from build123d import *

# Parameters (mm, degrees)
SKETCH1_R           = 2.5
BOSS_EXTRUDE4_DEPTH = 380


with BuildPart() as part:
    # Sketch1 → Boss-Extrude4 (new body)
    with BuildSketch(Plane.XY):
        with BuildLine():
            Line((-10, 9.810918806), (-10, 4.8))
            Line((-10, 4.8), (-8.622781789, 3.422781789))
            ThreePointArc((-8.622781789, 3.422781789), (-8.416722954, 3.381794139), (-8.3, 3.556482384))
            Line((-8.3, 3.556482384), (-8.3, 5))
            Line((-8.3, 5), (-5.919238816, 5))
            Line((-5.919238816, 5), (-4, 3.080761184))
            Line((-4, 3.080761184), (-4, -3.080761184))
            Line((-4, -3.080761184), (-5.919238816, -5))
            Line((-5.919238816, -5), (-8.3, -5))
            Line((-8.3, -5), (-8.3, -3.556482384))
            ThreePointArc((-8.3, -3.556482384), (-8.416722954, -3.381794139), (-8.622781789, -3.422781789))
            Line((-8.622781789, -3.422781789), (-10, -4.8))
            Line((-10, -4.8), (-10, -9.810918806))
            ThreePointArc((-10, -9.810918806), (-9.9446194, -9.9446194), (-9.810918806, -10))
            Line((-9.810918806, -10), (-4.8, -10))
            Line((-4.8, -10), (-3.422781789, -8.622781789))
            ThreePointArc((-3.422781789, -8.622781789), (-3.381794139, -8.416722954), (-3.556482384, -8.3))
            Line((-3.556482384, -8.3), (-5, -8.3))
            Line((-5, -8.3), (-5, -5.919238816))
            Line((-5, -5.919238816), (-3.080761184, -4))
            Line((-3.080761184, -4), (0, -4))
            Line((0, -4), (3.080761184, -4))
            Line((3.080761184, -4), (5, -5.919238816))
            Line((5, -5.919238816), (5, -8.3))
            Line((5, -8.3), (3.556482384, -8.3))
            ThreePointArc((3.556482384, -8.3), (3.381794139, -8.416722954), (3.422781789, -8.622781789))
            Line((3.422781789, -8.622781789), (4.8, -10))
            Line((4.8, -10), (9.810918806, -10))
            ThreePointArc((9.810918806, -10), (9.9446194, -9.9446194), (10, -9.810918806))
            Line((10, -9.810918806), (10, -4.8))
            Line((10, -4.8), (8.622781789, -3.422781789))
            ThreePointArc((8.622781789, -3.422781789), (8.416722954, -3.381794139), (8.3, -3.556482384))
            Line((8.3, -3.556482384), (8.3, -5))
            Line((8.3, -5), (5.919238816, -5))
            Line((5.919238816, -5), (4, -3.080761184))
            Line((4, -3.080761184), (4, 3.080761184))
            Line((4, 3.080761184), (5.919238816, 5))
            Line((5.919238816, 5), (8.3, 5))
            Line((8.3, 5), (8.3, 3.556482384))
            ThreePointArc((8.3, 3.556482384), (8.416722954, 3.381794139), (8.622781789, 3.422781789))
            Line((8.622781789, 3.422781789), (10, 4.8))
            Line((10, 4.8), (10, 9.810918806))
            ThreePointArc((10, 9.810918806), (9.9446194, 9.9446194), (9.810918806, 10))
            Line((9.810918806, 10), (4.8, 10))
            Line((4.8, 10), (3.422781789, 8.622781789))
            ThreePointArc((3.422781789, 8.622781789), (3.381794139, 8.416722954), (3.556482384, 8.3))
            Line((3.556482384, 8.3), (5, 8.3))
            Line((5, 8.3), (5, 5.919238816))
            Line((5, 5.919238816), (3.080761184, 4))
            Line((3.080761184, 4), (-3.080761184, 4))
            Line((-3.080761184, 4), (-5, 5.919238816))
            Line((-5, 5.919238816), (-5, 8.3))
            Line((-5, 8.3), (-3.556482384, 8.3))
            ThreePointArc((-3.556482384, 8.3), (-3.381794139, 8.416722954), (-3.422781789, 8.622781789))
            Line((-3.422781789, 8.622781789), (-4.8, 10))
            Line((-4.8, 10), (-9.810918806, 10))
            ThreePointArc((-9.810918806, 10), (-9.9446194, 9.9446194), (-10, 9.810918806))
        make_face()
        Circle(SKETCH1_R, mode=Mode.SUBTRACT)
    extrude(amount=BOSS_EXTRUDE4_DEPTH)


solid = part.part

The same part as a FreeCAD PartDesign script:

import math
import FreeCAD as App
import Part
import Sketcher
from FreeCAD import Vector
Q = App.Units.Quantity

doc = App.newDocument("Part")
body = doc.addObject("PartDesign::Body", "Body")

sketch1 = doc.addObject("Sketcher::SketchObject", "Sketch")
body.addObject(sketch1)
sketch1.AttachmentSupport = (doc.XY_Plane, [""])
sketch1.MapMode = "FlatFace"
sketch1.addGeometry(Part.LineSegment(Vector(-10, 9.810919, 0), Vector(-10, 4.8, 0)), False)
sketch1.addGeometry(Part.LineSegment(Vector(-10, 4.8, 0), Vector(-8.622782, 3.422782, 0)), False)
sketch1.addGeometry(Part.ArcOfCircle(Part.Circle(Vector(-8.489081, 3.556482, 0), Vector(0, 0, 1), 0.189081), math.radians(-135), math.radians(0)), False)
sketch1.addGeometry(Part.LineSegment(Vector(-8.3, 3.556482, 0), Vector(-8.3, 5, 0)), False)
sketch1.addGeometry(Part.LineSegment(Vector(-8.3, 5, 0), Vector(-5.919239, 5, 0)), False)
sketch1.addGeometry(Part.LineSegment(Vector(-5.919239, 5, 0), Vector(-4, 3.080761, 0)), False)
sketch1.addGeometry(Part.LineSegment(Vector(-4, 3.080761, 0), Vector(-4, -3.080761, 0)), False)
sketch1.addGeometry(Part.LineSegment(Vector(-4, -3.080761, 0), Vector(-5.919239, -5, 0)), False)
sketch1.addGeometry(Part.LineSegment(Vector(-5.919239, -5, 0), Vector(-8.3, -5, 0)), False)
sketch1.addGeometry(Part.LineSegment(Vector(-8.3, -5, 0), Vector(-8.3, -3.556482, 0)), False)
sketch1.addGeometry(Part.ArcOfCircle(Part.Circle(Vector(-8.489081, -3.556482, 0), Vector(0, 0, 1), 0.189081), math.radians(0), math.radians(135)), False)
sketch1.addGeometry(Part.LineSegment(Vector(-8.622782, -3.422782, 0), Vector(-10, -4.8, 0)), False)
sketch1.addGeometry(Part.LineSegment(Vector(-10, -4.8, 0), Vector(-10, -9.810919, 0)), False)
sketch1.addGeometry(Part.ArcOfCircle(Part.Circle(Vector(-9.810919, -9.810919, 0), Vector(0, 0, 1), 0.189081), math.radians(-179.999999), math.radians(-90.000001)), False)
sketch1.addGeometry(Part.LineSegment(Vector(-9.810919, -10, 0), Vector(-4.8, -10, 0)), False)
sketch1.addGeometry(Part.LineSegment(Vector(-4.8, -10, 0), Vector(-3.422782, -8.622782, 0)), False)
sketch1.addGeometry(Part.ArcOfCircle(Part.Circle(Vector(-3.556482, -8.489081, 0), Vector(0, 0, 1), 0.189081), math.radians(-45), math.radians(90)), False)
sketch1.addGeometry(Part.LineSegment(Vector(-3.556482, -8.3, 0), Vector(-5, -8.3, 0)), False)
sketch1.addGeometry(Part.LineSegment(Vector(-5, -8.3, 0), Vector(-5, -5.919239, 0)), False)
sketch1.addGeometry(Part.LineSegment(Vector(-5, -5.919239, 0), Vector(-3.080761, -4, 0)), False)
sketch1.addGeometry(Part.LineSegment(Vector(-3.080761, -4, 0), Vector(3.080761, -4, 0)), False)
sketch1.addGeometry(Part.LineSegment(Vector(3.080761, -4, 0), Vector(5, -5.919239, 0)), False)
sketch1.addGeometry(Part.LineSegment(Vector(5, -5.919239, 0), Vector(5, -8.3, 0)), False)
sketch1.addGeometry(Part.LineSegment(Vector(5, -8.3, 0), Vector(3.556482, -8.3, 0)), False)
sketch1.addGeometry(Part.ArcOfCircle(Part.Circle(Vector(3.556482, -8.489081, 0), Vector(0, 0, 1), 0.189081), math.radians(90), math.radians(225)), False)
sketch1.addGeometry(Part.LineSegment(Vector(3.422782, -8.622782, 0), Vector(4.8, -10, 0)), False)
sketch1.addGeometry(Part.LineSegment(Vector(4.8, -10, 0), Vector(9.810919, -10, 0)), False)
sketch1.addGeometry(Part.ArcOfCircle(Part.Circle(Vector(9.810919, -9.810919, 0), Vector(0, 0, 1), 0.189081), math.radians(-89.999999), math.radians(-0.000001)), False)
sketch1.addGeometry(Part.LineSegment(Vector(10, -9.810919, 0), Vector(10, -4.8, 0)), False)
sketch1.addGeometry(Part.LineSegment(Vector(10, -4.8, 0), Vector(8.622782, -3.422782, 0)), False)
sketch1.addGeometry(Part.ArcOfCircle(Part.Circle(Vector(8.489081, -3.556482, 0), Vector(0, 0, 1), 0.189081), math.radians(45), math.radians(180)), False)
sketch1.addGeometry(Part.LineSegment(Vector(8.3, -3.556482, 0), Vector(8.3, -5, 0)), False)
sketch1.addGeometry(Part.LineSegment(Vector(8.3, -5, 0), Vector(5.919239, -5, 0)), False)
sketch1.addGeometry(Part.LineSegment(Vector(5.919239, -5, 0), Vector(4, -3.080761, 0)), False)
sketch1.addGeometry(Part.LineSegment(Vector(4, -3.080761, 0), Vector(4, 3.080761, 0)), False)
sketch1.addGeometry(Part.LineSegment(Vector(4, 3.080761, 0), Vector(5.919239, 5, 0)), False)
sketch1.addGeometry(Part.LineSegment(Vector(5.919239, 5, 0), Vector(8.3, 5, 0)), False)
sketch1.addGeometry(Part.LineSegment(Vector(8.3, 5, 0), Vector(8.3, 3.556482, 0)), False)
sketch1.addGeometry(Part.ArcOfCircle(Part.Circle(Vector(8.489081, 3.556482, 0), Vector(0, 0, 1), 0.189081), math.radians(-180), math.radians(-45)), False)
sketch1.addGeometry(Part.LineSegment(Vector(8.622782, 3.422782, 0), Vector(10, 4.8, 0)), False)
sketch1.addGeometry(Part.LineSegment(Vector(10, 4.8, 0), Vector(10, 9.810919, 0)), False)
sketch1.addGeometry(Part.ArcOfCircle(Part.Circle(Vector(9.810919, 9.810919, 0), Vector(0, 0, 1), 0.189081), math.radians(0.000001), math.radians(89.999999)), False)
sketch1.addGeometry(Part.LineSegment(Vector(9.810919, 10, 0), Vector(4.8, 10, 0)), False)
sketch1.addGeometry(Part.LineSegment(Vector(4.8, 10, 0), Vector(3.422782, 8.622782, 0)), False)
sketch1.addGeometry(Part.ArcOfCircle(Part.Circle(Vector(3.556482, 8.489081, 0), Vector(0, 0, 1), 0.189081), math.radians(135), math.radians(270)), False)
sketch1.addGeometry(Part.LineSegment(Vector(3.556482, 8.3, 0), Vector(5, 8.3, 0)), False)
sketch1.addGeometry(Part.LineSegment(Vector(5, 8.3, 0), Vector(5, 5.919239, 0)), False)
sketch1.addGeometry(Part.LineSegment(Vector(5, 5.919239, 0), Vector(3.080761, 4, 0)), False)
sketch1.addGeometry(Part.LineSegment(Vector(3.080761, 4, 0), Vector(-3.080761, 4, 0)), False)
sketch1.addGeometry(Part.LineSegment(Vector(-3.080761, 4, 0), Vector(-5, 5.919239, 0)), False)
sketch1.addGeometry(Part.LineSegment(Vector(-5, 5.919239, 0), Vector(-5, 8.3, 0)), False)
sketch1.addGeometry(Part.LineSegment(Vector(-5, 8.3, 0), Vector(-3.556482, 8.3, 0)), False)
sketch1.addGeometry(Part.ArcOfCircle(Part.Circle(Vector(-3.556482, 8.489081, 0), Vector(0, 0, 1), 0.189081), math.radians(-90), math.radians(45)), False)
sketch1.addGeometry(Part.LineSegment(Vector(-3.422782, 8.622782, 0), Vector(-4.8, 10, 0)), False)
sketch1.addGeometry(Part.LineSegment(Vector(-4.8, 10, 0), Vector(-9.810919, 10, 0)), False)
sketch1.addGeometry(Part.ArcOfCircle(Part.Circle(Vector(-9.810919, 9.810919, 0), Vector(0, 0, 1), 0.189081), math.radians(90.000001), math.radians(179.999999)), False)
sketch1.addGeometry(Part.Circle(Vector(0, 0, 0), Vector(0, 0, 1), 2.5), False)
sketch1.addConstraint(Sketcher.Constraint("Coincident", 0, 2, 1, 1))
sketch1.addConstraint(Sketcher.Constraint("Tangent", 1, 2, 2, 1))
sketch1.addConstraint(Sketcher.Constraint("Tangent", 2, 2, 3, 1))
sketch1.addConstraint(Sketcher.Constraint("Coincident", 3, 2, 4, 1))
sketch1.addConstraint(Sketcher.Constraint("Coincident", 4, 2, 5, 1))
sketch1.addConstraint(Sketcher.Constraint("Coincident", 5, 2, 6, 1))
sketch1.addConstraint(Sketcher.Constraint("Coincident", 6, 2, 7, 1))
sketch1.addConstraint(Sketcher.Constraint("Coincident", 7, 2, 8, 1))
sketch1.addConstraint(Sketcher.Constraint("Coincident", 8, 2, 9, 1))
sketch1.addConstraint(Sketcher.Constraint("Tangent", 9, 2, 10, 1))
sketch1.addConstraint(Sketcher.Constraint("Tangent", 10, 2, 11, 1))
sketch1.addConstraint(Sketcher.Constraint("Coincident", 11, 2, 12, 1))
sketch1.addConstraint(Sketcher.Constraint("Tangent", 12, 2, 13, 1))
sketch1.addConstraint(Sketcher.Constraint("Tangent", 13, 2, 14, 1))
sketch1.addConstraint(Sketcher.Constraint("Coincident", 14, 2, 15, 1))
sketch1.addConstraint(Sketcher.Constraint("Tangent", 15, 2, 16, 1))
sketch1.addConstraint(Sketcher.Constraint("Tangent", 16, 2, 17, 1))
sketch1.addConstraint(Sketcher.Constraint("Coincident", 17, 2, 18, 1))
sketch1.addConstraint(Sketcher.Constraint("Coincident", 18, 2, 19, 1))
sketch1.addConstraint(Sketcher.Constraint("Coincident", 19, 2, 20, 1))
sketch1.addConstraint(Sketcher.Constraint("Coincident", 20, 2, 21, 1))
sketch1.addConstraint(Sketcher.Constraint("Coincident", 21, 2, 22, 1))
sketch1.addConstraint(Sketcher.Constraint("Coincident", 22, 2, 23, 1))
sketch1.addConstraint(Sketcher.Constraint("Tangent", 23, 2, 24, 1))
sketch1.addConstraint(Sketcher.Constraint("Tangent", 24, 2, 25, 1))
sketch1.addConstraint(Sketcher.Constraint("Coincident", 25, 2, 26, 1))
sketch1.addConstraint(Sketcher.Constraint("Tangent", 26, 2, 27, 1))
sketch1.addConstraint(Sketcher.Constraint("Tangent", 27, 2, 28, 1))
sketch1.addConstraint(Sketcher.Constraint("Coincident", 28, 2, 29, 1))
sketch1.addConstraint(Sketcher.Constraint("Tangent", 29, 2, 30, 1))
sketch1.addConstraint(Sketcher.Constraint("Tangent", 30, 2, 31, 1))
sketch1.addConstraint(Sketcher.Constraint("Coincident", 31, 2, 32, 1))
sketch1.addConstraint(Sketcher.Constraint("Coincident", 32, 2, 33, 1))
sketch1.addConstraint(Sketcher.Constraint("Coincident", 33, 2, 34, 1))
sketch1.addConstraint(Sketcher.Constraint("Coincident", 34, 2, 35, 1))
sketch1.addConstraint(Sketcher.Constraint("Coincident", 35, 2, 36, 1))
sketch1.addConstraint(Sketcher.Constraint("Coincident", 36, 2, 37, 1))
sketch1.addConstraint(Sketcher.Constraint("Tangent", 37, 2, 38, 1))
sketch1.addConstraint(Sketcher.Constraint("Tangent", 38, 2, 39, 1))
sketch1.addConstraint(Sketcher.Constraint("Coincident", 39, 2, 40, 1))
sketch1.addConstraint(Sketcher.Constraint("Tangent", 40, 2, 41, 1))
sketch1.addConstraint(Sketcher.Constraint("Tangent", 41, 2, 42, 1))
sketch1.addConstraint(Sketcher.Constraint("Coincident", 42, 2, 43, 1))
sketch1.addConstraint(Sketcher.Constraint("Tangent", 43, 2, 44, 1))
sketch1.addConstraint(Sketcher.Constraint("Tangent", 44, 2, 45, 1))
sketch1.addConstraint(Sketcher.Constraint("Coincident", 45, 2, 46, 1))
sketch1.addConstraint(Sketcher.Constraint("Coincident", 46, 2, 47, 1))
sketch1.addConstraint(Sketcher.Constraint("Coincident", 47, 2, 48, 1))
sketch1.addConstraint(Sketcher.Constraint("Coincident", 48, 2, 49, 1))
sketch1.addConstraint(Sketcher.Constraint("Coincident", 49, 2, 50, 1))
sketch1.addConstraint(Sketcher.Constraint("Coincident", 50, 2, 51, 1))
sketch1.addConstraint(Sketcher.Constraint("Tangent", 51, 2, 52, 1))
sketch1.addConstraint(Sketcher.Constraint("Tangent", 52, 2, 53, 1))
sketch1.addConstraint(Sketcher.Constraint("Coincident", 53, 2, 54, 1))
sketch1.addConstraint(Sketcher.Constraint("Tangent", 54, 2, 55, 1))
sketch1.addConstraint(Sketcher.Constraint("Tangent", 55, 2, 0, 1))
sketch1.addConstraint(Sketcher.Constraint("Vertical", 0))
sketch1.addConstraint(Sketcher.Constraint("Vertical", 3))
sketch1.addConstraint(Sketcher.Constraint("Horizontal", 4))
sketch1.addConstraint(Sketcher.Constraint("Vertical", 6))
sketch1.addConstraint(Sketcher.Constraint("Horizontal", 8))
sketch1.addConstraint(Sketcher.Constraint("Vertical", 9))
sketch1.addConstraint(Sketcher.Constraint("Vertical", 12))
sketch1.addConstraint(Sketcher.Constraint("Horizontal", 14))
sketch1.addConstraint(Sketcher.Constraint("Horizontal", 17))
sketch1.addConstraint(Sketcher.Constraint("Vertical", 18))
sketch1.addConstraint(Sketcher.Constraint("Horizontal", 20))
sketch1.addConstraint(Sketcher.Constraint("Vertical", 22))
sketch1.addConstraint(Sketcher.Constraint("Horizontal", 23))
sketch1.addConstraint(Sketcher.Constraint("Horizontal", 26))
sketch1.addConstraint(Sketcher.Constraint("Vertical", 28))
sketch1.addConstraint(Sketcher.Constraint("Vertical", 31))
sketch1.addConstraint(Sketcher.Constraint("Horizontal", 32))
sketch1.addConstraint(Sketcher.Constraint("Vertical", 34))
sketch1.addConstraint(Sketcher.Constraint("Horizontal", 36))
sketch1.addConstraint(Sketcher.Constraint("Vertical", 37))
sketch1.addConstraint(Sketcher.Constraint("Vertical", 40))
sketch1.addConstraint(Sketcher.Constraint("Horizontal", 42))
sketch1.addConstraint(Sketcher.Constraint("Horizontal", 45))
sketch1.addConstraint(Sketcher.Constraint("Vertical", 46))
sketch1.addConstraint(Sketcher.Constraint("Horizontal", 48))
sketch1.addConstraint(Sketcher.Constraint("Vertical", 50))
sketch1.addConstraint(Sketcher.Constraint("Horizontal", 51))
sketch1.addConstraint(Sketcher.Constraint("Horizontal", 54))
sketch1.addConstraint(Sketcher.Constraint("Coincident", 56, 3, -1, 1))
sketch1.addConstraint(Sketcher.Constraint("Equal", 2, 10))
sketch1.addConstraint(Sketcher.Constraint("Equal", 10, 13))
sketch1.addConstraint(Sketcher.Constraint("Equal", 13, 16))
sketch1.addConstraint(Sketcher.Constraint("Equal", 16, 24))
sketch1.addConstraint(Sketcher.Constraint("Equal", 24, 27))
sketch1.addConstraint(Sketcher.Constraint("Equal", 27, 30))
sketch1.addConstraint(Sketcher.Constraint("Equal", 30, 38))
sketch1.addConstraint(Sketcher.Constraint("Equal", 38, 41))
sketch1.addConstraint(Sketcher.Constraint("Equal", 41, 44))
sketch1.addConstraint(Sketcher.Constraint("Equal", 44, 52))
sketch1.addConstraint(Sketcher.Constraint("Equal", 52, 55))
sketch1.addConstraint(Sketcher.Constraint("Symmetric", 2, 3, 30, 3, -1, 1))
sketch1.addConstraint(Sketcher.Constraint("Symmetric", 10, 3, 38, 3, -1, 1))
sketch1.addConstraint(Sketcher.Constraint("Symmetric", 13, 3, 41, 3, -1, 1))
sketch1.addConstraint(Sketcher.Constraint("Symmetric", 16, 3, 44, 3, -1, 1))
sketch1.addConstraint(Sketcher.Constraint("Symmetric", 24, 3, 52, 3, -1, 1))
sketch1.addConstraint(Sketcher.Constraint("Symmetric", 27, 3, 55, 3, -1, 1))
sketch1.addConstraint(Sketcher.Constraint("Symmetric", 4, 2, 32, 2, -1, 1))
sketch1.addConstraint(Sketcher.Constraint("Symmetric", 5, 2, 33, 2, -1, 1))
sketch1.addConstraint(Sketcher.Constraint("Symmetric", 7, 2, 35, 2, -1, 1))
sketch1.addConstraint(Sketcher.Constraint("Symmetric", 18, 2, 46, 2, -1, 1))
sketch1.addConstraint(Sketcher.Constraint("Symmetric", 19, 2, 47, 2, -1, 1))
sketch1.addConstraint(Sketcher.Constraint("Symmetric", 21, 2, 49, 2, -1, 1))
sketch1.addConstraint(Sketcher.Constraint("Symmetric", 16, 3, 24, 3, -2))
sketch1.addConstraint(Sketcher.Constraint("Symmetric", 13, 3, 27, 3, -2))
sketch1.addConstraint(Sketcher.Constraint("Symmetric", 10, 3, 30, 3, -2))
sketch1.addConstraint(Sketcher.Constraint("Symmetric", 18, 2, 21, 2, -2))
sketch1.addConstraint(Sketcher.Constraint("Symmetric", 7, 2, 32, 2, -2))
sketch1.addConstraint(Sketcher.Constraint("Parallel", 1, 5))
sketch1.addConstraint(Sketcher.Constraint("Perpendicular", 5, 7))
sketch1.addConstraint(Sketcher.Constraint("Parallel", 7, 11))
sketch1.addConstraint(Sketcher.Constraint("Parallel", 11, 15))
sketch1.addConstraint(Sketcher.Constraint("Parallel", 15, 19))
sketch1.addConstraint(Sketcher.Constraint("Perpendicular", 19, 21))
sketch1.addConstraint(Sketcher.Constraint("Parallel", 21, 25))
sketch1.addConstraint(Sketcher.Constraint("Parallel", 25, 29))
sketch1.addConstraint(Sketcher.Constraint("Perpendicular", 33, 35))
sketch1.addConstraint(Sketcher.Constraint("Parallel", 35, 39))
sketch1.addConstraint(Sketcher.Constraint("Parallel", 39, 43))
sketch1.addConstraint(Sketcher.Constraint("Perpendicular", 47, 49))
sketch1.addConstraint(Sketcher.Constraint("Parallel", 49, 53))
sketch1.addConstraint(Sketcher.Constraint("Horizontal", 15, 2, 24, 2))
sketch1.addConstraint(Sketcher.Constraint("Equal", 54, 0))
sketch1.addConstraint(Sketcher.Constraint("Equal", 51, 3))
sketch1.addConstraint(Sketcher.Constraint("Equal", 48, 6))
sketch1.addConstraint(Sketcher.Constraint("Equal", 36, 18))
sketch1.addConstraint(Sketcher.Constraint("Equal", 11, 15))
sketch1.addConstraint(Sketcher.Constraint("Equal", 7, 19))
sketch1.addConstraint(Sketcher.Constraint("Diameter", 56, Q("5 mm")))
sketch1.addConstraint(Sketcher.Constraint("DistanceX", 0, 2, -1, 1, Q("10 mm")))
sketch1.addConstraint(Sketcher.Constraint("DistanceY", -1, 1, 3, 2, Q("5 mm")))
sketch1.addConstraint(Sketcher.Constraint("DistanceX", 5, 2, -1, 1, Q("4 mm")))
sketch1.addConstraint(Sketcher.Constraint("DistanceY", -1, 1, 0, 2, Q("4.8 mm")))
sketch1.addConstraint(Sketcher.Constraint("DistanceX", 2, 2, -1, 1, Q("8.3 mm")))
sketch1.addConstraint(Sketcher.Constraint("Radius", 2, Q("0.189081 mm")))
sketch1.addConstraint(Sketcher.Constraint("DistanceX", 4, 1, 4, 2, Q("2.380761 mm")))
pad1 = doc.addObject("PartDesign::Pad", "Pad")
body.addObject(pad1)
pad1.Profile = sketch1
pad1.Length = 380

doc.recompute()
